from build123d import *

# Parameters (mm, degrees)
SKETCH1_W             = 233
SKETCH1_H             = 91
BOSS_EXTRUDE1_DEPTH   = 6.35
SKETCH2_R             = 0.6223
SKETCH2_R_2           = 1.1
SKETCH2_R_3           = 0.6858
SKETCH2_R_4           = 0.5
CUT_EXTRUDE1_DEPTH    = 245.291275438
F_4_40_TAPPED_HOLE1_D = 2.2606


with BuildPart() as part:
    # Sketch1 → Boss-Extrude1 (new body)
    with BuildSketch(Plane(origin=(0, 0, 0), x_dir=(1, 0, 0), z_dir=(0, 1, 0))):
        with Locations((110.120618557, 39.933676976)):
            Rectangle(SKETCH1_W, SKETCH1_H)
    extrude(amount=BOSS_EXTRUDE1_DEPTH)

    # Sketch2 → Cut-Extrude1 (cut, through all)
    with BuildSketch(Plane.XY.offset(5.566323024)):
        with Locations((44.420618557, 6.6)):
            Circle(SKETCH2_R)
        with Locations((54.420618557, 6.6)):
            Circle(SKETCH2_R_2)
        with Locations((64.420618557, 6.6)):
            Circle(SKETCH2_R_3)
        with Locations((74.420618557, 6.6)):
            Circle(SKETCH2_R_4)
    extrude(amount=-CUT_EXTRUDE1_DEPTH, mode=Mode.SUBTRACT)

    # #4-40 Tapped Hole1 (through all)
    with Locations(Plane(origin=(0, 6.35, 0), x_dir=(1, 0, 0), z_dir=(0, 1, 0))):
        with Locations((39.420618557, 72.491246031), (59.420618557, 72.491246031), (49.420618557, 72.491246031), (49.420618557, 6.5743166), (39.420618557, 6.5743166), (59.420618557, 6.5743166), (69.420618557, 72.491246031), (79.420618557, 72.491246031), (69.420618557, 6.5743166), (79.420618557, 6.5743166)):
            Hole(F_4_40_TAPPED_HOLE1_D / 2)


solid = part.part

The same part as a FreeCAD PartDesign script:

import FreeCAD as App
import Part
import Sketcher
Q = App.Units.Quantity

doc = App.newDocument("Part")
body = doc.addObject("PartDesign::Body", "Body")

sketch1 = doc.addObject("Sketcher::SketchObject", "Sketch")
body.addObject(sketch1)
sketch1.AttachmentSupport = (doc.XZ_Plane, [""])
sketch1.MapMode = "FlatFace"
sketch1.addGeometry(Part.LineSegment(App.Vector(-6.379381, -85.433677, 0), App.Vector(-6.379381, 5.566323, 0)), False)
sketch1.addGeometry(Part.LineSegment(App.Vector(-6.379381, 5.566323, 0), App.Vector(226.620619, 5.566323, 0)), False)
sketch1.addGeometry(Part.LineSegment(App.Vector(226.620619, 5.566323, 0), App.Vector(226.620619, -85.433677, 0)), False)
sketch1.addGeometry(Part.LineSegment(App.Vector(226.620619, -85.433677, 0), App.Vector(-6.379381, -85.433677, 0)), False)
sketch1.addConstraint(Sketcher.Constraint("Coincident", 0, 2, 1, 1))
sketch1.addConstraint(Sketcher.Constraint("Coincident", 1, 2, 2, 1))
sketch1.addConstraint(Sketcher.Constraint("Coincident", 2, 2, 3, 1))
sketch1.addConstraint(Sketcher.Constraint("Coincident", 3, 2, 0, 1))
sketch1.addConstraint(Sketcher.Constraint("Vertical", 0))
sketch1.addConstraint(Sketcher.Constraint("Horizontal", 1))
sketch1.addConstraint(Sketcher.Constraint("Vertical", 2))
sketch1.addConstraint(Sketcher.Constraint("Horizontal", 3))
sketch1.addConstraint(Sketcher.Constraint("DistanceX", 1, 1, 1, 2, Q("233 mm")))
sketch1.addConstraint(Sketcher.Constraint("DistanceY", 0, 1, 0, 2, Q("91 mm")))
sketch1.addConstraint(Sketcher.Constraint("DistanceX", 0, 2, -1, 1, Q("6.379381 mm")))
sketch1.addConstraint(Sketcher.Constraint("DistanceY", -1, 1, 0, 2, Q("5.566323 mm")))
pad1 = doc.addObject("PartDesign::Pad", "Pad")
body.addObject(pad1)
pad1.Profile = sketch1
pad1.Length = 6.35
pad1.Reversed = True

sketch2 = doc.addObject("Sketcher::SketchObject", "Sketch001")
body.addObject(sketch2)
sketch2.AttachmentSupport = (doc.XY_Plane, [""])
sketch2.MapMode = "FlatFace"
sketch2.AttachmentOffset = App.Placement(App.Vector(0, 0, 5.566323), App.Rotation())
sketch2.addGeometry(Part.Circle(App.Vector(44.420619, 6.6, 0), App.Vector(0, 0, 1), 0.6223), False)
sketch2.addGeometry(Part.Circle(App.Vector(54.420619, 6.6, 0), App.Vector(0, 0, 1), 1.1), False)
sketch2.addGeometry(Part.Circle(App.Vector(64.420619, 6.6, 0), App.Vector(0, 0, 1), 0.6858), False)
sketch2.addGeometry(Part.Circle(App.Vector(74.420619, 6.6, 0), App.Vector(0, 0, 1), 0.5), False)
sketch2.addConstraint(Sketcher.Constraint("Horizontal", 0, 3, 1, 3))
sketch2.addConstraint(Sketcher.Constraint("Horizontal", 1, 3, 2, 3))
sketch2.addConstraint(Sketcher.Constraint("Horizontal", 2, 3, 3, 3))
sketch2.addConstraint(Sketcher.Constraint("Diameter", 3, Q("1 mm")))
sketch2.addConstraint(Sketcher.Constraint("Diameter", 1, Q("2.2 mm")))
sketch2.addConstraint(Sketcher.Constraint("DistanceX", 0, 3, 1, 3, Q("10 mm")))
sketch2.addConstraint(Sketcher.Constraint("DistanceX", 1, 3, 2, 3, Q("10 mm")))
sketch2.addConstraint(Sketcher.Constraint("DistanceX", 2, 3, 3, 3, Q("10 mm")))
sketch2.addConstraint(Sketcher.Constraint("Diameter", 0, Q("1.2446 mm")))
sketch2.addConstraint(Sketcher.Constraint("Diameter", 2, Q("1.3716 mm")))
sketch2.addConstraint(Sketcher.Constraint("DistanceY", -1, 1, 0, 3, Q("6.6 mm")))
sketch2.addConstraint(Sketcher.Constraint("DistanceX", -1, 1, 0, 3, Q("44.420619 mm")))
pocket1 = doc.addObject("PartDesign::Pocket", "Pocket")
body.addObject(pocket1)
pocket1.Profile = sketch2
pocket1.Type = "ThroughAll"

sketch3 = doc.addObject("Sketcher::SketchObject", "Sketch002")
body.addObject(sketch3)
sketch3.AttachmentSupport = (doc.XZ_Plane, [""])
sketch3.MapMode = "FlatFace"
sketch3.AttachmentOffset = App.Placement(App.Vector(0, 0, -6.35), App.Rotation())
sketch3.addGeometry(Part.Circle(App.Vector(39.420619, -72.491246, 0), App.Vector(0, 0, 1), 1.1303), False)
sketch3.addGeometry(Part.Circle(App.Vector(59.420619, -72.491246, 0), App.Vector(0, 0, 1), 1.1303), False)
sketch3.addGeometry(Part.Circle(App.Vector(49.420619, -72.491246, 0), App.Vector(0, 0, 1), 1.1303), False)
sketch3.addGeometry(Part.Circle(App.Vector(49.420619, -6.574317, 0), App.Vector(0, 0, 1), 1.1303), False)
sketch3.addGeometry(Part.Circle(App.Vector(39.420619, -6.574317, 0), App.Vector(0, 0, 1), 1.1303), False)
sketch3.addGeometry(Part.Circle(App.Vector(59.420619, -6.574317, 0), App.Vector(0, 0, 1), 1.1303), False)
sketch3.addGeometry(Part.Circle(App.Vector(69.420619, -72.491246, 0), App.Vector(0, 0, 1), 1.1303), False)
sketch3.addGeometry(Part.Circle(App.Vector(79.420619, -72.491246, 0), App.Vector(0, 0, 1), 1.1303), False)
sketch3.addGeometry(Part.Circle(App.Vector(69.420619, -6.574317, 0), App.Vector(0, 0, 1), 1.1303), False)
sketch3.addGeometry(Part.Circle(App.Vector(79.420619, -6.574317, 0), App.Vector(0, 0, 1), 1.1303), False)
sketch3.addConstraint(Sketcher.Constraint("Equal", 0, 1))
sketch3.addConstraint(Sketcher.Constraint("Equal", 1, 2))
sketch3.addConstraint(Sketcher.Constraint("Equal", 2, 3))
sketch3.addConstraint(Sketcher.Constraint("Equal", 3, 4))
sketch3.addConstraint(Sketcher.Constraint("Equal", 4, 5))
sketch3.addConstraint(Sketcher.Constraint("Equal", 5, 6))
sketch3.addConstraint(Sketcher.Constraint("Equal", 6, 7))
sketch3.addConstraint(Sketcher.Constraint("Equal", 7, 8))
sketch3.addConstraint(Sketcher.Constraint("Equal", 8, 9))
sketch3.addConstraint(Sketcher.Constraint("Horizontal", 0, 3, 1, 3))
sketch3.addConstraint(Sketcher.Constraint("Horizontal", 1, 3, 2, 3))
sketch3.addConstraint(Sketcher.Constraint("Horizontal", 3, 3, 4, 3))
sketch3.addConstraint(Sketcher.Constraint("Horizontal", 4, 3, 5, 3))
sketch3.addConstraint(Sketcher.Constraint("Horizontal", 2, 3, 6, 3))
sketch3.addConstraint(Sketcher.Constraint("Horizontal", 6, 3, 7, 3))
sketch3.addConstraint(Sketcher.Constraint("Horizontal", 5, 3, 8, 3))
sketch3.addConstraint(Sketcher.Constraint("Horizontal", 8, 3, 9, 3))
sketch3.addConstraint(Sketcher.Constraint("Vertical", 2, 3, 3, 3))
sketch3.addConstraint(Sketcher.Constraint("Vertical", 0, 3, 4, 3))
sketch3.addConstraint(Sketcher.Constraint("Vertical", 1, 3, 5, 3))
sketch3.addConstraint(Sketcher.Constraint("Vertical", 6, 3, 8, 3))
sketch3.addConstraint(Sketcher.Constraint("Vertical", 7, 3, 9, 3))
sketch3.addConstraint(Sketcher.Constraint("DistanceX", 0, 3, 1, 3, Q("20 mm")))
sketch3.addConstraint(Sketcher.Constraint("DistanceX", 0, 3, 2, 3, Q("10 mm")))
sketch3.addConstraint(Sketcher.Constraint("DistanceX", 1, 3, 6, 3, Q("10 mm")))
sketch3.addConstraint(Sketcher.Constraint("DistanceX", 6, 3, 7, 3, Q("10 mm")))
sketch3.addConstraint(Sketcher.Constraint("Diameter", 0, Q("2.2606 mm")))
sketch3.addConstraint(Sketcher.Constraint("DistanceX", -1, 1, 0, 3, Q("39.420619 mm")))
sketch3.addConstraint(Sketcher.Constraint("DistanceY", 2, 3, 3, 3, Q("65.916929 mm")))
sketch3.addConstraint(Sketcher.Constraint("DistanceY", 0, 3, -1, 1, Q("72.491246 mm")))
doc.recompute()
hole = doc.addObject("PartDesign::Hole", "Hole")
body.addObject(hole)
hole.Profile = sketch3
hole.ThreadType = "None"
hole.Diameter = 2.2606
hole.DepthType = "ThroughAll"
hole.Reversed = True

doc.recompute()
